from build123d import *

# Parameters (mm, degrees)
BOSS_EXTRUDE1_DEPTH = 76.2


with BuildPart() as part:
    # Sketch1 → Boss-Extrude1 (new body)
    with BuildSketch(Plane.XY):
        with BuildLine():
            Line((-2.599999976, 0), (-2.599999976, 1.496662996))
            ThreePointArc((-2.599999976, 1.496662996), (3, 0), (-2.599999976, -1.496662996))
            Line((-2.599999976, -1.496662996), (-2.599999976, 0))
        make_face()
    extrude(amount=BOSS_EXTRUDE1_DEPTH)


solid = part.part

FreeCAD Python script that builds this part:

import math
import FreeCAD as App
import Part
import Sketcher
from FreeCAD import Vector
Q = App.Units.Quantity

doc = App.newDocument("Part")
params = doc.addObject("Spreadsheet::Sheet", "Params")
for row, (alias, value) in enumerate([
    ("sketch1_radius", "3 mm"),
    ("pad1_length", "76.2 mm"),
], start=1):
    params.set(f"A{row}", alias)
    params.set(f"B{row}", "=" + value)
    params.setAlias(f"B{row}", alias)

body = doc.addObject("PartDesign::Body", "Body")

sketch1 = doc.addObject("Sketcher::SketchObject", "Sketch")
body.addObject(sketch1)
sketch1.AttachmentSupport = (doc.XY_Plane, [""])
sketch1.MapMode = "FlatFace"
sketch1.addGeometry(Part.ArcOfCircle(Part.Circle(Vector(0, 0, 0), Vector(0, 0, 1), 3), math.radians(-150.073564), math.radians(150.073564)), False)
sketch1.addGeometry(Part.LineSegment(Vector(-2.6, 1.496663, 0), Vector(-2.6, -1.496663, 0)), False)
sketch1.addConstraint(Sketcher.Constraint("Coincident", 0, 1, 1, 2))
sketch1.addConstraint(Sketcher.Constraint("Coincident", 1, 1, 0, 2))
sketch1.addConstraint(Sketcher.Constraint("Vertical", 1))
sketch1.addConstraint(Sketcher.Constraint("Coincident", 0, 3, -1, 1))
sketch1.addConstraint(Sketcher.Constraint("Radius", 0, Q("3 mm")))
sketch1.addConstraint(Sketcher.Constraint("DistanceX", 0, 1, -1, 1, Q("2.6 mm")))
sketch1.setExpression("Constraints[4]", "Params.sketch1_radius")
pad1 = doc.addObject("PartDesign::Pad", "Pad")
body.addObject(pad1)
pad1.Profile = sketch1
pad1.setExpression("Length", "Params.pad1_length")

doc.recompute()
